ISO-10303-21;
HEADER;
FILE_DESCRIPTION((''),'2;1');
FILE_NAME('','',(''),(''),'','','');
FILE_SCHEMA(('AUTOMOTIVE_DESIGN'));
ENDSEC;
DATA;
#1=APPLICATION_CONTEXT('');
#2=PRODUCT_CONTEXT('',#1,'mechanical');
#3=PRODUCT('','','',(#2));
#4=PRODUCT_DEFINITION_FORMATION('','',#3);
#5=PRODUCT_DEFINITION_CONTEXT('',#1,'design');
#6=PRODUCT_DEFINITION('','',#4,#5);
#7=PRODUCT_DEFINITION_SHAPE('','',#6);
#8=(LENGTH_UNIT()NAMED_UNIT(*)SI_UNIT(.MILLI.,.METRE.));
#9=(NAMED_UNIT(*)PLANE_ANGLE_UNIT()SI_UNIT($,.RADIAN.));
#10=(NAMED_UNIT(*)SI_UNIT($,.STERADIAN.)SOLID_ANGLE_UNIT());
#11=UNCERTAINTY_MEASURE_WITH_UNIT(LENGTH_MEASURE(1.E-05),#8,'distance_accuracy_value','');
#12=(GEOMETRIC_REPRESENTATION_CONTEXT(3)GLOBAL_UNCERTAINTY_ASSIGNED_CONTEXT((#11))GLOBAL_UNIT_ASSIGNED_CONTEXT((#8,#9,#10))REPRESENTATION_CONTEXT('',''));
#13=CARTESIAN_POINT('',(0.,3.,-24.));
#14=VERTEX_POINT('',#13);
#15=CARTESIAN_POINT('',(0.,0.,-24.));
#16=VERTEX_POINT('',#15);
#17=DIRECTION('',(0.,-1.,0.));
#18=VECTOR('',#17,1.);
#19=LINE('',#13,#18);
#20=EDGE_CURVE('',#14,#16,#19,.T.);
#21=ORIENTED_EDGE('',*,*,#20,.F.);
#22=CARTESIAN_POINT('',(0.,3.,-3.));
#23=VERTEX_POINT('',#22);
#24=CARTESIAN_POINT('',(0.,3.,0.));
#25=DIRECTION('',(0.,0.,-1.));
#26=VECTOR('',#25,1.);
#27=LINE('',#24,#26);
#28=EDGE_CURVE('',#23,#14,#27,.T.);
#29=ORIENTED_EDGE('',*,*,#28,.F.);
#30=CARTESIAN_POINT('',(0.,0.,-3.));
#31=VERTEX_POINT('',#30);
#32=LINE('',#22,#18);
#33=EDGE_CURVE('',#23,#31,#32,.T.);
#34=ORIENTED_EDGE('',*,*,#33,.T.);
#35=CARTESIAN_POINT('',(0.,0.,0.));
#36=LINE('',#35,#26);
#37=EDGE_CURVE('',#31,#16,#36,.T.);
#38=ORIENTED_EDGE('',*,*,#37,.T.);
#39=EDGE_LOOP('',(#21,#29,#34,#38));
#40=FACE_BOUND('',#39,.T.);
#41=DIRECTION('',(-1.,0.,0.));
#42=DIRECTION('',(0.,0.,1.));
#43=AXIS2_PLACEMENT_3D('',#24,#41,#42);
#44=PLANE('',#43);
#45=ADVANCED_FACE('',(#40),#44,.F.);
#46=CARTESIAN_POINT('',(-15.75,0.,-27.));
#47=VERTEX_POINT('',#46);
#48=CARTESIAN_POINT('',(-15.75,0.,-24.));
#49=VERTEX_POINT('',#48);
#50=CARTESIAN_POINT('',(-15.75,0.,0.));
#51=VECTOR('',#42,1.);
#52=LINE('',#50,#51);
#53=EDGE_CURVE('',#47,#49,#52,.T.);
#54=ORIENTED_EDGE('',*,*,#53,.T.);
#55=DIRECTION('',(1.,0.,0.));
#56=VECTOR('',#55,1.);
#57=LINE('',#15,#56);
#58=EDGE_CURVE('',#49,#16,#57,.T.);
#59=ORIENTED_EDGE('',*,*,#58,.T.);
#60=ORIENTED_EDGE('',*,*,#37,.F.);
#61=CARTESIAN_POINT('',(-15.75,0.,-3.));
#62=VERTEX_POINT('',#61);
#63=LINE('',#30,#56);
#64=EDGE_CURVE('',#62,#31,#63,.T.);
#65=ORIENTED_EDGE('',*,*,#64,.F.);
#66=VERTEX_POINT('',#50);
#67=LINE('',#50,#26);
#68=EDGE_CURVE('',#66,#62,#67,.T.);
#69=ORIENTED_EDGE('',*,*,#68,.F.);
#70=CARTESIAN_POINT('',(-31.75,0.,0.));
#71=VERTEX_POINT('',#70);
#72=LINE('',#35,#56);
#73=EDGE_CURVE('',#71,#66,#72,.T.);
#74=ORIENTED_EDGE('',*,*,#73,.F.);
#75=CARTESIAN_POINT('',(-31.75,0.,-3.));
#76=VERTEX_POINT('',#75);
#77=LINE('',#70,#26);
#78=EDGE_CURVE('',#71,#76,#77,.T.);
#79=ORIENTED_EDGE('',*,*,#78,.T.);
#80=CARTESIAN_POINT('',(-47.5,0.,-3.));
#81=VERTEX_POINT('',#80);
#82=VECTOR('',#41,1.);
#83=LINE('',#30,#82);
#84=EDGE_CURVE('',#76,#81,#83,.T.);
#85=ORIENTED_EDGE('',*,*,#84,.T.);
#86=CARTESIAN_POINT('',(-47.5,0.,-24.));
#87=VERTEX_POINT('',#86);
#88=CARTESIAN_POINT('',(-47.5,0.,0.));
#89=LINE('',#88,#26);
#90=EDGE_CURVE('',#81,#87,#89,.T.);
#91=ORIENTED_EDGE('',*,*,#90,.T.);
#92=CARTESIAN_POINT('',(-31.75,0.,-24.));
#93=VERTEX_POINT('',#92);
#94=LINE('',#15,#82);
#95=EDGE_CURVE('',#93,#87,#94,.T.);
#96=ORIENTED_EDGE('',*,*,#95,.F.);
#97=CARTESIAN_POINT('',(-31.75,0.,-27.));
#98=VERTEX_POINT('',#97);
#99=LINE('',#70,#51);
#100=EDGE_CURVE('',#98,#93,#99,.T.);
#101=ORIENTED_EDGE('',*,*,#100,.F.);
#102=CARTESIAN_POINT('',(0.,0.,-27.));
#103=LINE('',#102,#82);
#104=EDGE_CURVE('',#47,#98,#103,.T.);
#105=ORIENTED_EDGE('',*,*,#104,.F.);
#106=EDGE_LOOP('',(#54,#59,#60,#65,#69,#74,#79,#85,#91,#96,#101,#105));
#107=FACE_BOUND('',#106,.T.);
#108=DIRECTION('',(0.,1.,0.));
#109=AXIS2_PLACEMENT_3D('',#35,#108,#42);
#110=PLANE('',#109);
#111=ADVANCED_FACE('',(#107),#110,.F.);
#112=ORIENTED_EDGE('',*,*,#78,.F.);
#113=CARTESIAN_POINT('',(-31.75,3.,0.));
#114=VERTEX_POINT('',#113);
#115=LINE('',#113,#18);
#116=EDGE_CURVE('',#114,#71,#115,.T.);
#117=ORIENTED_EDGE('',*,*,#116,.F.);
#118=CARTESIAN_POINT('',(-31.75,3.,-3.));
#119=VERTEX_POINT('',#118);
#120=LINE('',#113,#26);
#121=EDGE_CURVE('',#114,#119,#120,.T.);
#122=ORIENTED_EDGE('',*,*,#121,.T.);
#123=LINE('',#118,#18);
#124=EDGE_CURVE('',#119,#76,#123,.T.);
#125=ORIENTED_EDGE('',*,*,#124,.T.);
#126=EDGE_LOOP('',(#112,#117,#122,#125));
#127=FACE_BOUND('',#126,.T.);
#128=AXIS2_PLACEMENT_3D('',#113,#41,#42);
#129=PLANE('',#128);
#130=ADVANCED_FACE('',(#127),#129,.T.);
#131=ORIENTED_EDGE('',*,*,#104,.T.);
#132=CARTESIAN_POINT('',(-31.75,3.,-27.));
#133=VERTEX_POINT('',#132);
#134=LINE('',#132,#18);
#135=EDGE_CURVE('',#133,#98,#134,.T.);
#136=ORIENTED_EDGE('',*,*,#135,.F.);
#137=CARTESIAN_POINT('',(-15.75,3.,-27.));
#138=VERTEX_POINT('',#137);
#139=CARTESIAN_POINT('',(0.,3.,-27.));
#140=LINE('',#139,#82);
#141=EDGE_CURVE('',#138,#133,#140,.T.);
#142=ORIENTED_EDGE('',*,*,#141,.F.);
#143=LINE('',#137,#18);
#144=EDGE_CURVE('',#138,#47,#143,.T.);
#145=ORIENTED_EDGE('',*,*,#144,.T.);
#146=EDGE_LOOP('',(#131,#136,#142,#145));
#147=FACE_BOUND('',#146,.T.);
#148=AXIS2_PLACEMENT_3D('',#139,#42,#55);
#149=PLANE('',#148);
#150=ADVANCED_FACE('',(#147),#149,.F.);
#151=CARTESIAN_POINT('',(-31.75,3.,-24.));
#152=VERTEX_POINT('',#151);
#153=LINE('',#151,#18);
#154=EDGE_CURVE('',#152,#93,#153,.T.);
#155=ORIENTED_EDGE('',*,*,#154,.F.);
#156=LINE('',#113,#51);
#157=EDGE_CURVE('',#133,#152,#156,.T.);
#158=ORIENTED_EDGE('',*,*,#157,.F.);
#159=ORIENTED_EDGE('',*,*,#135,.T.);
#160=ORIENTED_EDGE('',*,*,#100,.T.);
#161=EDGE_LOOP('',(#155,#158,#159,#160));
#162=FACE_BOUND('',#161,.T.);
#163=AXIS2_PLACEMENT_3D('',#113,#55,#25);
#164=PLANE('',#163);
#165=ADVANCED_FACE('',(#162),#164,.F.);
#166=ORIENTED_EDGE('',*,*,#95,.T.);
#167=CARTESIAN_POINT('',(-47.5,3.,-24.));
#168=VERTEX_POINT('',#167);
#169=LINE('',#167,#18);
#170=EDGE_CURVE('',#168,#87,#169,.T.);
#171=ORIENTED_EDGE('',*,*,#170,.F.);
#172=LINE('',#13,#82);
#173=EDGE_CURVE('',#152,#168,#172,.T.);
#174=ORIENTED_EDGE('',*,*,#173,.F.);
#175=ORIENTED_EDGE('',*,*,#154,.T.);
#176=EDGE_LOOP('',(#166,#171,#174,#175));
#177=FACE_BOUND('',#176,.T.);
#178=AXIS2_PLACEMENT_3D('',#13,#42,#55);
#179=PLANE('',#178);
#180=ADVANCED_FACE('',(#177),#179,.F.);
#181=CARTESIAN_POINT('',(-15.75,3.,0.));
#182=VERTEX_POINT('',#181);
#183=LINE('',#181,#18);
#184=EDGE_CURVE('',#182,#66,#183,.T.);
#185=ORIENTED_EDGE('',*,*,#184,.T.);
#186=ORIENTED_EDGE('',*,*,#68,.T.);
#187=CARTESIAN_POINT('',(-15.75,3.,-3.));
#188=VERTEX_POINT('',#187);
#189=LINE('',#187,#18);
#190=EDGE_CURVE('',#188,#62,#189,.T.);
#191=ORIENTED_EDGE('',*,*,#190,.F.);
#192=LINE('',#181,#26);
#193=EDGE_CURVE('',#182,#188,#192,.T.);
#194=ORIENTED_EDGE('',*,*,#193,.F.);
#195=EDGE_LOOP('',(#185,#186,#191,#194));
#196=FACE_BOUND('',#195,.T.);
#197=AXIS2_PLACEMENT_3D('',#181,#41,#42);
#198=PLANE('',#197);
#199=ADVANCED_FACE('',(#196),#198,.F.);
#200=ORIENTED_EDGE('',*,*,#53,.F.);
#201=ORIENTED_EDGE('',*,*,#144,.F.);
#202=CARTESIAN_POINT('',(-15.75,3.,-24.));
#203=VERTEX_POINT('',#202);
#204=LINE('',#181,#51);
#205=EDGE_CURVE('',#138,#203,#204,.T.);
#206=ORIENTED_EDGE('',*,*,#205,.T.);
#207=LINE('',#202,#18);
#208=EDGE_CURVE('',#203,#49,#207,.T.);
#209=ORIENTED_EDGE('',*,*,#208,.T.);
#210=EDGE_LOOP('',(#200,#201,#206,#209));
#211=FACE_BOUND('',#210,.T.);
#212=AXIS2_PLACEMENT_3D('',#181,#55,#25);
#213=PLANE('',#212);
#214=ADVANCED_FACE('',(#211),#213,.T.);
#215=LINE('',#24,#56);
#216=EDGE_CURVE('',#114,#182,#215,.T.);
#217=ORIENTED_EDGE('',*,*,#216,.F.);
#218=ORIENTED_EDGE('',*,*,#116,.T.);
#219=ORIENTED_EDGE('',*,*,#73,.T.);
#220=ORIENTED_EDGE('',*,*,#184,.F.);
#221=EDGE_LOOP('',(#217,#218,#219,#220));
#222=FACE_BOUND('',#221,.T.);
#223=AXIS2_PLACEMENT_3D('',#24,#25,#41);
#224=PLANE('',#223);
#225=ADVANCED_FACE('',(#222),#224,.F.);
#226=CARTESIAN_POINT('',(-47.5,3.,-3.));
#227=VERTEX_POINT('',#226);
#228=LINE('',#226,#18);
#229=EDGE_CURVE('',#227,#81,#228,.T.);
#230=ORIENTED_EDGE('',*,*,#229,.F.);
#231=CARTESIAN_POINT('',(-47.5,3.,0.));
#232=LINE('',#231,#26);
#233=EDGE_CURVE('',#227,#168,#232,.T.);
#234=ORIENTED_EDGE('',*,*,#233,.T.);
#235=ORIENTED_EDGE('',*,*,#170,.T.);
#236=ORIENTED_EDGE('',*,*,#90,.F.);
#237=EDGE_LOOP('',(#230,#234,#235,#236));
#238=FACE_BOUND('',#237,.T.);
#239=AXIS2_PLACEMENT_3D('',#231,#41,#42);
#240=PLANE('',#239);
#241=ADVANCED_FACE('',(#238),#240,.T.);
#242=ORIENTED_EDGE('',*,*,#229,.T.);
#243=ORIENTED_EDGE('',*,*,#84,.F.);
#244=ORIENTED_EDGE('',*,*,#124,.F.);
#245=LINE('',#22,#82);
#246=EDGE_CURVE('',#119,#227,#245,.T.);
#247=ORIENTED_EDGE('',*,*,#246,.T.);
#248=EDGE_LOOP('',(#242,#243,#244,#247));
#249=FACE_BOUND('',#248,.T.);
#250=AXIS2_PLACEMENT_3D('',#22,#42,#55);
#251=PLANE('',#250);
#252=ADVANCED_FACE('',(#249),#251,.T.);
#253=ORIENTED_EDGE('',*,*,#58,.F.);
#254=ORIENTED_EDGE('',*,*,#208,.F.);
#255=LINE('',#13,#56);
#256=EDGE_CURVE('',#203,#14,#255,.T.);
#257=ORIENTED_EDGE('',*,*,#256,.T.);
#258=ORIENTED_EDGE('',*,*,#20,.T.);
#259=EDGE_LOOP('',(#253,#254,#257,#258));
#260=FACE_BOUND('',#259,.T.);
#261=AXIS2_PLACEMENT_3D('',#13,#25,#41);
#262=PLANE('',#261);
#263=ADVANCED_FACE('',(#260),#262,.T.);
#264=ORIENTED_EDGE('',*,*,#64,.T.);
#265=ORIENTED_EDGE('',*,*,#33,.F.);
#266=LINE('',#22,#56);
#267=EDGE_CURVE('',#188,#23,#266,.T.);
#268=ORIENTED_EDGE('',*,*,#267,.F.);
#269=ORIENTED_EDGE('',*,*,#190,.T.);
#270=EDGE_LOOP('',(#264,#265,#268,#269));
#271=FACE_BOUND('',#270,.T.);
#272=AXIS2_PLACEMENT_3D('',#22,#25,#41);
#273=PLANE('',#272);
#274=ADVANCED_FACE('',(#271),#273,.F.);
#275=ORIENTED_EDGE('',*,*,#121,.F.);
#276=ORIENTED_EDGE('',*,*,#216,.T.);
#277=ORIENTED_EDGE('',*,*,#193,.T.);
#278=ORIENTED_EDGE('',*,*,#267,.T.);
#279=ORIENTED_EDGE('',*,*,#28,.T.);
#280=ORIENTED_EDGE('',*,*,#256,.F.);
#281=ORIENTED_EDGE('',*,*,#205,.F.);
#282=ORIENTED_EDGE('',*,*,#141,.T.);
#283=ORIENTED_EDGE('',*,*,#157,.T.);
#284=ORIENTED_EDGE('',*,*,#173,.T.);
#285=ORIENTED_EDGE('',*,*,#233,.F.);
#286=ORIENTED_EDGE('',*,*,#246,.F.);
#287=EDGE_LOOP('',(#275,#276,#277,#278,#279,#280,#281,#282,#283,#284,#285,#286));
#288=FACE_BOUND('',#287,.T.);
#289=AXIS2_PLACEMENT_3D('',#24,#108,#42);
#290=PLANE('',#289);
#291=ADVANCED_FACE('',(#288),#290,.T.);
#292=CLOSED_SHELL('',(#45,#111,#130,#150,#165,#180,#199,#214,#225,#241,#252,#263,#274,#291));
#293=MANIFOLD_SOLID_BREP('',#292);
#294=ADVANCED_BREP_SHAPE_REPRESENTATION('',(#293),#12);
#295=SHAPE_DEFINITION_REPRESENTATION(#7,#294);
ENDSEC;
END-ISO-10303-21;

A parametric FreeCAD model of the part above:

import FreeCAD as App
import Part
import Sketcher
from FreeCAD import Vector
Q = App.Units.Quantity


def add_polygon(sketch, points):
    """Adds a closed chain of lines whose ends are joined by coincident constraints."""
    first, n = sketch.GeometryCount, len(points)
    for a, b in zip(points, points[1:] + points[:1]):
        sketch.addGeometry(Part.LineSegment(App.Vector(*a, 0), App.Vector(*b, 0)), False)
    for i in range(n):
        sketch.addConstraint(Sketcher.Constraint("Coincident", first + i, 2, first + (i + 1) % n, 1))

doc = App.newDocument("Part")
body = doc.addObject("PartDesign::Body", "Body")

# Sketch on XZ plane
sketch1 = body.newObject("Sketcher::SketchObject", "Sketch")
sketch1.AttachmentSupport = (doc.getObject("XZ_Plane"), [""])
sketch1.MapMode = "FlatFace"
add_polygon(sketch1, [(-31.8, -3), (-31.8, 0), (-15.8, 0), (-15.8, -3), (0, -3), (0, -24), (-15.8, -24), (-15.8, -27), (-31.8, -27), (-31.8, -24), (-47.5, -24), (-47.5, -3)])  # lines 0-11
sketch1.addConstraint(Sketcher.Constraint("Vertical", 0))
sketch1.addConstraint(Sketcher.Constraint("Horizontal", 1))
sketch1.addConstraint(Sketcher.Constraint("Vertical", 2))
sketch1.addConstraint(Sketcher.Constraint("Horizontal", 3))
sketch1.addConstraint(Sketcher.Constraint("Vertical", 4))
sketch1.addConstraint(Sketcher.Constraint("Horizontal", 5))
sketch1.addConstraint(Sketcher.Constraint("Vertical", 6))
sketch1.addConstraint(Sketcher.Constraint("Horizontal", 7))
sketch1.addConstraint(Sketcher.Constraint("Vertical", 8))
sketch1.addConstraint(Sketcher.Constraint("Horizontal", 9))
sketch1.addConstraint(Sketcher.Constraint("Vertical", 10))
sketch1.addConstraint(Sketcher.Constraint("Horizontal", 11))
sketch1.addConstraint(Sketcher.Constraint("PointOnObject", 0, 2, -1))
sketch1.addConstraint(Sketcher.Constraint("PointOnObject", 3, 2, -2))
sketch1.addConstraint(Sketcher.Constraint("Horizontal", 5, 2, 8, 2))
sketch1.addConstraint(Sketcher.Constraint("Horizontal", 3, 2, 10, 2))
sketch1.addConstraint(Sketcher.Constraint("Vertical", 2, 2, 5, 2))
sketch1.addConstraint(Sketcher.Constraint("Vertical", 0, 2, 7, 2))
sketch1.addConstraint(Sketcher.Constraint("Equal", 5, 9))
sketch1.addConstraint(Sketcher.Constraint("Equal", 2, 6))
sketch1.addConstraint(Sketcher.Constraint("DistanceX", 1, 1, 1, 2, Q("16 mm")))
sketch1.addConstraint(Sketcher.Constraint("DistanceY", 0, 1, 0, 2, Q("3 mm")))
sketch1.addConstraint(Sketcher.Constraint("DistanceY", 4, 2, 4, 1, Q("21 mm")))
sketch1.addConstraint(Sketcher.Constraint("DistanceX", 3, 1, 3, 2, Q("15.75 mm")))
pad1 = body.newObject("PartDesign::Pad", "Pad")
pad1.Profile = sketch1
pad1.Length = 3
pad1.Reversed = True

doc.recompute()
